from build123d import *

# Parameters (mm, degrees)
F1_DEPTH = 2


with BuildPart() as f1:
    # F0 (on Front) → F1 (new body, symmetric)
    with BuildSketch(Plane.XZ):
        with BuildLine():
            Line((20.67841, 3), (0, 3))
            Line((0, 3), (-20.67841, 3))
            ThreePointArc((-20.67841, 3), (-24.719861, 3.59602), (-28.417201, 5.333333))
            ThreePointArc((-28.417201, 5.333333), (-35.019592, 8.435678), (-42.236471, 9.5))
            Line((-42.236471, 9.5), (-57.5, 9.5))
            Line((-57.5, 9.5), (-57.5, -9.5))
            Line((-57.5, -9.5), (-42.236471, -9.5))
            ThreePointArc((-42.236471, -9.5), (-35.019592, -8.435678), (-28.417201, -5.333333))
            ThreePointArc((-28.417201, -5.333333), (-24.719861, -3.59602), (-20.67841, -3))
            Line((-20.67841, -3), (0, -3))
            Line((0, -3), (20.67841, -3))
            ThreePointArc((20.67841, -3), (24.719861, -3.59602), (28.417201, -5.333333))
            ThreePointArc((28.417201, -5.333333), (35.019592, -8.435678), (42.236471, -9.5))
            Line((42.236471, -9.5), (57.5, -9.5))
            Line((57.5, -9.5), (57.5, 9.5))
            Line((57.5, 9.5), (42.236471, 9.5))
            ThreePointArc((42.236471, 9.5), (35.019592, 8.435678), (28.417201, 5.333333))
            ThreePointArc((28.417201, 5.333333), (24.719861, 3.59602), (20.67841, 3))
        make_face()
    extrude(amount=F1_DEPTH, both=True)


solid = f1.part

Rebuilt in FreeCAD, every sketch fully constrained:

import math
import FreeCAD as App
import Part
import Sketcher

V = App.Vector

doc = App.newDocument("Part")
params = doc.addObject("Spreadsheet::Sheet", "Params")
for row, (alias, value) in enumerate([
    ("sketch1_height", "19 mm"),
    ("pad1_length", "4 mm"),
], start=1):
    params.set(f"A{row}", alias)
    params.set(f"B{row}", "=" + value)
    params.setAlias(f"B{row}", alias)

body = doc.addObject("PartDesign::Body", "Body")

sketch1 = body.newObject("Sketcher::SketchObject", "Sketch")
sketch1.AttachmentSupport = (doc.getObject("XZ_Plane"), [""])
sketch1.MapMode = "FlatFace"
sketch1.addGeometry(Part.LineSegment(V(21, 3, 0), V(-21, 3, 0)), False)
sketch1.addGeometry(Part.ArcOfCircle(Part.Circle(V(-21, 17, 0), V(0, 0, 1), 14), math.radians(-124), math.radians(-90)), False)
sketch1.addGeometry(Part.ArcOfCircle(Part.Circle(V(-42, -15, 0), V(0, 0, 1), 25), math.radians(56), math.radians(90)), False)
sketch1.addGeometry(Part.LineSegment(V(-42, 10, 0), V(-58, 10, 0)), False)
sketch1.addGeometry(Part.LineSegment(V(-58, 10, 0), V(-58, -10, 0)), False)
sketch1.addGeometry(Part.LineSegment(V(-58, -10, 0), V(-42, -10, 0)), False)
sketch1.addGeometry(Part.ArcOfCircle(Part.Circle(V(-42, 15, 0), V(0, 0, 1), 25), math.radians(-90), math.radians(-56)), False)
sketch1.addGeometry(Part.ArcOfCircle(Part.Circle(V(-21, -17, 0), V(0, 0, 1), 14), math.radians(90), math.radians(124)), False)
sketch1.addGeometry(Part.LineSegment(V(-21, -3, 0), V(21, -3, 0)), False)
sketch1.addGeometry(Part.ArcOfCircle(Part.Circle(V(21, -17, 0), V(0, 0, 1), 14), math.radians(56), math.radians(90)), False)
sketch1.addGeometry(Part.ArcOfCircle(Part.Circle(V(42, 15, 0), V(0, 0, 1), 25), math.radians(-124), math.radians(-90)), False)
sketch1.addGeometry(Part.LineSegment(V(42, -10, 0), V(58, -10, 0)), False)
sketch1.addGeometry(Part.LineSegment(V(58, -10, 0), V(58, 10, 0)), False)
sketch1.addGeometry(Part.LineSegment(V(58, 10, 0), V(42, 10, 0)), False)
sketch1.addGeometry(Part.ArcOfCircle(Part.Circle(V(42, -15, 0), V(0, 0, 1), 25), math.radians(90), math.radians(124)), False)
sketch1.addGeometry(Part.ArcOfCircle(Part.Circle(V(21, 17, 0), V(0, 0, 1), 14), math.radians(-90), math.radians(-56)), False)
sketch1.addConstraint(Sketcher.Constraint("Tangent", 0, 2, 1, 2))
sketch1.addConstraint(Sketcher.Constraint("Tangent", 1, 1, 2, 1))
sketch1.addConstraint(Sketcher.Constraint("Tangent", 2, 2, 3, 1))
sketch1.addConstraint(Sketcher.Constraint("Coincident", 3, 2, 4, 1))
sketch1.addConstraint(Sketcher.Constraint("Coincident", 4, 2, 5, 1))
sketch1.addConstraint(Sketcher.Constraint("Tangent", 5, 2, 6, 1))
sketch1.addConstraint(Sketcher.Constraint("Tangent", 6, 2, 7, 2))
sketch1.addConstraint(Sketcher.Constraint("Tangent", 7, 1, 8, 1))
sketch1.addConstraint(Sketcher.Constraint("Tangent", 8, 2, 9, 2))
sketch1.addConstraint(Sketcher.Constraint("Tangent", 9, 1, 10, 1))
sketch1.addConstraint(Sketcher.Constraint("Tangent", 10, 2, 11, 1))
sketch1.addConstraint(Sketcher.Constraint("Coincident", 11, 2, 12, 1))
sketch1.addConstraint(Sketcher.Constraint("Coincident", 12, 2, 13, 1))
sketch1.addConstraint(Sketcher.Constraint("Tangent", 13, 2, 14, 1))
sketch1.addConstraint(Sketcher.Constraint("Tangent", 14, 2, 15, 2))
sketch1.addConstraint(Sketcher.Constraint("Tangent", 15, 1, 0, 1))
sketch1.addConstraint(Sketcher.Constraint("Horizontal", 0))
sketch1.addConstraint(Sketcher.Constraint("Horizontal", 3))
sketch1.addConstraint(Sketcher.Constraint("Vertical", 4))
sketch1.addConstraint(Sketcher.Constraint("Horizontal", 5))
sketch1.addConstraint(Sketcher.Constraint("Horizontal", 8))
sketch1.addConstraint(Sketcher.Constraint("Horizontal", 11))
sketch1.addConstraint(Sketcher.Constraint("Vertical", 12))
sketch1.addConstraint(Sketcher.Constraint("Horizontal", 13))
sketch1.addConstraint(Sketcher.Constraint("Equal", 2, 6))
sketch1.addConstraint(Sketcher.Constraint("Equal", 1, 7))
sketch1.addConstraint(Sketcher.Constraint("Equal", 7, 9))
sketch1.addConstraint(Sketcher.Constraint("Equal", 6, 10))
sketch1.addConstraint(Sketcher.Constraint("Equal", 10, 14))
sketch1.addConstraint(Sketcher.Constraint("Equal", 9, 15))
sketch1.addConstraint(Sketcher.Constraint("Symmetric", 1, 3, 9, 3, -1, 1))
sketch1.addConstraint(Sketcher.Constraint("Symmetric", 6, 3, 14, 3, -1, 1))
sketch1.addConstraint(Sketcher.Constraint("Symmetric", 3, 2, 11, 2, -1, 1))
sketch1.addConstraint(Sketcher.Constraint("Symmetric", 6, 3, 10, 3, -2))
sketch1.addConstraint(Sketcher.Constraint("DistanceY", 4, 2, 4, 1, 19.0))
sketch1.addConstraint(Sketcher.Constraint("DistanceY", -1, 1, 0, 2, 3.0))
sketch1.addConstraint(Sketcher.Constraint("DistanceX", 3, 2, -1, 1, 57.5))
sketch1.addConstraint(Sketcher.Constraint("Radius", 1, 13.999997))
sketch1.addConstraint(Sketcher.Constraint("Radius", 2, 24.999986))
sketch1.addConstraint(Sketcher.Constraint("DistanceX", 0, 2, 0, 1, 41.35682))
sketch1.setExpression("Constraints[34]", "Params.sketch1_height")
pad1 = body.newObject("PartDesign::Pad", "Pad")
pad1.Profile = sketch1
pad1.setExpression("Length", "Params.pad1_length")
pad1.Midplane = True

doc.recompute()
